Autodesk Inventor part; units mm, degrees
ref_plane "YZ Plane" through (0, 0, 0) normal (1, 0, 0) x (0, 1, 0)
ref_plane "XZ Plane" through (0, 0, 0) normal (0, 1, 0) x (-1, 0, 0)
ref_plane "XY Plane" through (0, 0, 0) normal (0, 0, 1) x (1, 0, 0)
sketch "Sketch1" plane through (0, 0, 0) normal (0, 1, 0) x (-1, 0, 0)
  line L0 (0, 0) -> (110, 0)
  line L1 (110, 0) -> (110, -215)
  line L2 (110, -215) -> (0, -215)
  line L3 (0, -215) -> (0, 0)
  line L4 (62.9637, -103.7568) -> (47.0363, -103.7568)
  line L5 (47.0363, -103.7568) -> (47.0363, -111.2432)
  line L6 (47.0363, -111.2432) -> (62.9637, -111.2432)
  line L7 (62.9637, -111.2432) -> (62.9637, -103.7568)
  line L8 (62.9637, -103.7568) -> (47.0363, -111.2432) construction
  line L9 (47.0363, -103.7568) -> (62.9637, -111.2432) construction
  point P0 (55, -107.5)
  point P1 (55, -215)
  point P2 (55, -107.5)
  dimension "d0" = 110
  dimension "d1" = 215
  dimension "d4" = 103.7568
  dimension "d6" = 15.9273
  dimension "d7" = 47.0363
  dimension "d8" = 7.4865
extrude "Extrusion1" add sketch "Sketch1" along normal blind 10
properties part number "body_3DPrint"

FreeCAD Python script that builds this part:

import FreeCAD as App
import Part
import Sketcher
from FreeCAD import Vector
Q = App.Units.Quantity

doc = App.newDocument("Part")
body = doc.addObject("PartDesign::Body", "Body")

sketch1 = doc.addObject("Sketcher::SketchObject", "Sketch")
body.addObject(sketch1)
sketch1.AttachmentSupport = (doc.XZ_Plane, [""])
sketch1.MapMode = "FlatFace"
sketch1.addGeometry(Part.LineSegment(Vector(-110, 0, 0), Vector(0, 0, 0)), False)
sketch1.addGeometry(Part.LineSegment(Vector(0, 0, 0), Vector(0, -215, 0)), False)
sketch1.addGeometry(Part.LineSegment(Vector(0, -215, 0), Vector(-110, -215, 0)), False)
sketch1.addGeometry(Part.LineSegment(Vector(-110, -215, 0), Vector(-110, 0, 0)), False)
sketch1.addGeometry(Part.LineSegment(Vector(-47, -104, 0), Vector(-63, -104, 0)), False)
sketch1.addGeometry(Part.LineSegment(Vector(-63, -104, 0), Vector(-63, -111, 0)), False)
sketch1.addGeometry(Part.LineSegment(Vector(-63, -111, 0), Vector(-47, -111, 0)), False)
sketch1.addGeometry(Part.LineSegment(Vector(-47, -111, 0), Vector(-47, -104, 0)), False)
sketch1.addConstraint(Sketcher.Constraint("Coincident", 0, 2, 1, 1))
sketch1.addConstraint(Sketcher.Constraint("Coincident", 1, 2, 2, 1))
sketch1.addConstraint(Sketcher.Constraint("Coincident", 2, 2, 3, 1))
sketch1.addConstraint(Sketcher.Constraint("Coincident", 3, 2, 0, 1))
sketch1.addConstraint(Sketcher.Constraint("Coincident", 4, 2, 5, 1))
sketch1.addConstraint(Sketcher.Constraint("Coincident", 5, 2, 6, 1))
sketch1.addConstraint(Sketcher.Constraint("Coincident", 6, 2, 7, 1))
sketch1.addConstraint(Sketcher.Constraint("Coincident", 7, 2, 4, 1))
sketch1.addConstraint(Sketcher.Constraint("Horizontal", 0))
sketch1.addConstraint(Sketcher.Constraint("Vertical", 1))
sketch1.addConstraint(Sketcher.Constraint("Horizontal", 2))
sketch1.addConstraint(Sketcher.Constraint("Vertical", 3))
sketch1.addConstraint(Sketcher.Constraint("Horizontal", 4))
sketch1.addConstraint(Sketcher.Constraint("Vertical", 5))
sketch1.addConstraint(Sketcher.Constraint("Horizontal", 6))
sketch1.addConstraint(Sketcher.Constraint("Vertical", 7))
sketch1.addConstraint(Sketcher.Constraint("Coincident", 0, 2, -1, 1))
sketch1.addConstraint(Sketcher.Constraint("DistanceX", 0, 1, 0, 2, Q("110 mm")))
sketch1.addConstraint(Sketcher.Constraint("DistanceY", 1, 2, 1, 1, Q("215 mm")))
sketch1.addConstraint(Sketcher.Constraint("DistanceX", 4, 2, 4, 1, Q("15.9274 mm")))
sketch1.addConstraint(Sketcher.Constraint("DistanceY", 5, 2, 5, 1, Q("7.4864 mm")))
sketch1.addConstraint(Sketcher.Constraint("DistanceY", 4, 2, -1, 1, Q("103.7568 mm")))
sketch1.addConstraint(Sketcher.Constraint("DistanceX", 6, 2, -1, 1, Q("47.0363 mm")))
pad1 = doc.addObject("PartDesign::Pad", "Pad")
body.addObject(pad1)
pad1.Profile = sketch1
pad1.Length = 10
pad1.Reversed = True

doc.recompute()
